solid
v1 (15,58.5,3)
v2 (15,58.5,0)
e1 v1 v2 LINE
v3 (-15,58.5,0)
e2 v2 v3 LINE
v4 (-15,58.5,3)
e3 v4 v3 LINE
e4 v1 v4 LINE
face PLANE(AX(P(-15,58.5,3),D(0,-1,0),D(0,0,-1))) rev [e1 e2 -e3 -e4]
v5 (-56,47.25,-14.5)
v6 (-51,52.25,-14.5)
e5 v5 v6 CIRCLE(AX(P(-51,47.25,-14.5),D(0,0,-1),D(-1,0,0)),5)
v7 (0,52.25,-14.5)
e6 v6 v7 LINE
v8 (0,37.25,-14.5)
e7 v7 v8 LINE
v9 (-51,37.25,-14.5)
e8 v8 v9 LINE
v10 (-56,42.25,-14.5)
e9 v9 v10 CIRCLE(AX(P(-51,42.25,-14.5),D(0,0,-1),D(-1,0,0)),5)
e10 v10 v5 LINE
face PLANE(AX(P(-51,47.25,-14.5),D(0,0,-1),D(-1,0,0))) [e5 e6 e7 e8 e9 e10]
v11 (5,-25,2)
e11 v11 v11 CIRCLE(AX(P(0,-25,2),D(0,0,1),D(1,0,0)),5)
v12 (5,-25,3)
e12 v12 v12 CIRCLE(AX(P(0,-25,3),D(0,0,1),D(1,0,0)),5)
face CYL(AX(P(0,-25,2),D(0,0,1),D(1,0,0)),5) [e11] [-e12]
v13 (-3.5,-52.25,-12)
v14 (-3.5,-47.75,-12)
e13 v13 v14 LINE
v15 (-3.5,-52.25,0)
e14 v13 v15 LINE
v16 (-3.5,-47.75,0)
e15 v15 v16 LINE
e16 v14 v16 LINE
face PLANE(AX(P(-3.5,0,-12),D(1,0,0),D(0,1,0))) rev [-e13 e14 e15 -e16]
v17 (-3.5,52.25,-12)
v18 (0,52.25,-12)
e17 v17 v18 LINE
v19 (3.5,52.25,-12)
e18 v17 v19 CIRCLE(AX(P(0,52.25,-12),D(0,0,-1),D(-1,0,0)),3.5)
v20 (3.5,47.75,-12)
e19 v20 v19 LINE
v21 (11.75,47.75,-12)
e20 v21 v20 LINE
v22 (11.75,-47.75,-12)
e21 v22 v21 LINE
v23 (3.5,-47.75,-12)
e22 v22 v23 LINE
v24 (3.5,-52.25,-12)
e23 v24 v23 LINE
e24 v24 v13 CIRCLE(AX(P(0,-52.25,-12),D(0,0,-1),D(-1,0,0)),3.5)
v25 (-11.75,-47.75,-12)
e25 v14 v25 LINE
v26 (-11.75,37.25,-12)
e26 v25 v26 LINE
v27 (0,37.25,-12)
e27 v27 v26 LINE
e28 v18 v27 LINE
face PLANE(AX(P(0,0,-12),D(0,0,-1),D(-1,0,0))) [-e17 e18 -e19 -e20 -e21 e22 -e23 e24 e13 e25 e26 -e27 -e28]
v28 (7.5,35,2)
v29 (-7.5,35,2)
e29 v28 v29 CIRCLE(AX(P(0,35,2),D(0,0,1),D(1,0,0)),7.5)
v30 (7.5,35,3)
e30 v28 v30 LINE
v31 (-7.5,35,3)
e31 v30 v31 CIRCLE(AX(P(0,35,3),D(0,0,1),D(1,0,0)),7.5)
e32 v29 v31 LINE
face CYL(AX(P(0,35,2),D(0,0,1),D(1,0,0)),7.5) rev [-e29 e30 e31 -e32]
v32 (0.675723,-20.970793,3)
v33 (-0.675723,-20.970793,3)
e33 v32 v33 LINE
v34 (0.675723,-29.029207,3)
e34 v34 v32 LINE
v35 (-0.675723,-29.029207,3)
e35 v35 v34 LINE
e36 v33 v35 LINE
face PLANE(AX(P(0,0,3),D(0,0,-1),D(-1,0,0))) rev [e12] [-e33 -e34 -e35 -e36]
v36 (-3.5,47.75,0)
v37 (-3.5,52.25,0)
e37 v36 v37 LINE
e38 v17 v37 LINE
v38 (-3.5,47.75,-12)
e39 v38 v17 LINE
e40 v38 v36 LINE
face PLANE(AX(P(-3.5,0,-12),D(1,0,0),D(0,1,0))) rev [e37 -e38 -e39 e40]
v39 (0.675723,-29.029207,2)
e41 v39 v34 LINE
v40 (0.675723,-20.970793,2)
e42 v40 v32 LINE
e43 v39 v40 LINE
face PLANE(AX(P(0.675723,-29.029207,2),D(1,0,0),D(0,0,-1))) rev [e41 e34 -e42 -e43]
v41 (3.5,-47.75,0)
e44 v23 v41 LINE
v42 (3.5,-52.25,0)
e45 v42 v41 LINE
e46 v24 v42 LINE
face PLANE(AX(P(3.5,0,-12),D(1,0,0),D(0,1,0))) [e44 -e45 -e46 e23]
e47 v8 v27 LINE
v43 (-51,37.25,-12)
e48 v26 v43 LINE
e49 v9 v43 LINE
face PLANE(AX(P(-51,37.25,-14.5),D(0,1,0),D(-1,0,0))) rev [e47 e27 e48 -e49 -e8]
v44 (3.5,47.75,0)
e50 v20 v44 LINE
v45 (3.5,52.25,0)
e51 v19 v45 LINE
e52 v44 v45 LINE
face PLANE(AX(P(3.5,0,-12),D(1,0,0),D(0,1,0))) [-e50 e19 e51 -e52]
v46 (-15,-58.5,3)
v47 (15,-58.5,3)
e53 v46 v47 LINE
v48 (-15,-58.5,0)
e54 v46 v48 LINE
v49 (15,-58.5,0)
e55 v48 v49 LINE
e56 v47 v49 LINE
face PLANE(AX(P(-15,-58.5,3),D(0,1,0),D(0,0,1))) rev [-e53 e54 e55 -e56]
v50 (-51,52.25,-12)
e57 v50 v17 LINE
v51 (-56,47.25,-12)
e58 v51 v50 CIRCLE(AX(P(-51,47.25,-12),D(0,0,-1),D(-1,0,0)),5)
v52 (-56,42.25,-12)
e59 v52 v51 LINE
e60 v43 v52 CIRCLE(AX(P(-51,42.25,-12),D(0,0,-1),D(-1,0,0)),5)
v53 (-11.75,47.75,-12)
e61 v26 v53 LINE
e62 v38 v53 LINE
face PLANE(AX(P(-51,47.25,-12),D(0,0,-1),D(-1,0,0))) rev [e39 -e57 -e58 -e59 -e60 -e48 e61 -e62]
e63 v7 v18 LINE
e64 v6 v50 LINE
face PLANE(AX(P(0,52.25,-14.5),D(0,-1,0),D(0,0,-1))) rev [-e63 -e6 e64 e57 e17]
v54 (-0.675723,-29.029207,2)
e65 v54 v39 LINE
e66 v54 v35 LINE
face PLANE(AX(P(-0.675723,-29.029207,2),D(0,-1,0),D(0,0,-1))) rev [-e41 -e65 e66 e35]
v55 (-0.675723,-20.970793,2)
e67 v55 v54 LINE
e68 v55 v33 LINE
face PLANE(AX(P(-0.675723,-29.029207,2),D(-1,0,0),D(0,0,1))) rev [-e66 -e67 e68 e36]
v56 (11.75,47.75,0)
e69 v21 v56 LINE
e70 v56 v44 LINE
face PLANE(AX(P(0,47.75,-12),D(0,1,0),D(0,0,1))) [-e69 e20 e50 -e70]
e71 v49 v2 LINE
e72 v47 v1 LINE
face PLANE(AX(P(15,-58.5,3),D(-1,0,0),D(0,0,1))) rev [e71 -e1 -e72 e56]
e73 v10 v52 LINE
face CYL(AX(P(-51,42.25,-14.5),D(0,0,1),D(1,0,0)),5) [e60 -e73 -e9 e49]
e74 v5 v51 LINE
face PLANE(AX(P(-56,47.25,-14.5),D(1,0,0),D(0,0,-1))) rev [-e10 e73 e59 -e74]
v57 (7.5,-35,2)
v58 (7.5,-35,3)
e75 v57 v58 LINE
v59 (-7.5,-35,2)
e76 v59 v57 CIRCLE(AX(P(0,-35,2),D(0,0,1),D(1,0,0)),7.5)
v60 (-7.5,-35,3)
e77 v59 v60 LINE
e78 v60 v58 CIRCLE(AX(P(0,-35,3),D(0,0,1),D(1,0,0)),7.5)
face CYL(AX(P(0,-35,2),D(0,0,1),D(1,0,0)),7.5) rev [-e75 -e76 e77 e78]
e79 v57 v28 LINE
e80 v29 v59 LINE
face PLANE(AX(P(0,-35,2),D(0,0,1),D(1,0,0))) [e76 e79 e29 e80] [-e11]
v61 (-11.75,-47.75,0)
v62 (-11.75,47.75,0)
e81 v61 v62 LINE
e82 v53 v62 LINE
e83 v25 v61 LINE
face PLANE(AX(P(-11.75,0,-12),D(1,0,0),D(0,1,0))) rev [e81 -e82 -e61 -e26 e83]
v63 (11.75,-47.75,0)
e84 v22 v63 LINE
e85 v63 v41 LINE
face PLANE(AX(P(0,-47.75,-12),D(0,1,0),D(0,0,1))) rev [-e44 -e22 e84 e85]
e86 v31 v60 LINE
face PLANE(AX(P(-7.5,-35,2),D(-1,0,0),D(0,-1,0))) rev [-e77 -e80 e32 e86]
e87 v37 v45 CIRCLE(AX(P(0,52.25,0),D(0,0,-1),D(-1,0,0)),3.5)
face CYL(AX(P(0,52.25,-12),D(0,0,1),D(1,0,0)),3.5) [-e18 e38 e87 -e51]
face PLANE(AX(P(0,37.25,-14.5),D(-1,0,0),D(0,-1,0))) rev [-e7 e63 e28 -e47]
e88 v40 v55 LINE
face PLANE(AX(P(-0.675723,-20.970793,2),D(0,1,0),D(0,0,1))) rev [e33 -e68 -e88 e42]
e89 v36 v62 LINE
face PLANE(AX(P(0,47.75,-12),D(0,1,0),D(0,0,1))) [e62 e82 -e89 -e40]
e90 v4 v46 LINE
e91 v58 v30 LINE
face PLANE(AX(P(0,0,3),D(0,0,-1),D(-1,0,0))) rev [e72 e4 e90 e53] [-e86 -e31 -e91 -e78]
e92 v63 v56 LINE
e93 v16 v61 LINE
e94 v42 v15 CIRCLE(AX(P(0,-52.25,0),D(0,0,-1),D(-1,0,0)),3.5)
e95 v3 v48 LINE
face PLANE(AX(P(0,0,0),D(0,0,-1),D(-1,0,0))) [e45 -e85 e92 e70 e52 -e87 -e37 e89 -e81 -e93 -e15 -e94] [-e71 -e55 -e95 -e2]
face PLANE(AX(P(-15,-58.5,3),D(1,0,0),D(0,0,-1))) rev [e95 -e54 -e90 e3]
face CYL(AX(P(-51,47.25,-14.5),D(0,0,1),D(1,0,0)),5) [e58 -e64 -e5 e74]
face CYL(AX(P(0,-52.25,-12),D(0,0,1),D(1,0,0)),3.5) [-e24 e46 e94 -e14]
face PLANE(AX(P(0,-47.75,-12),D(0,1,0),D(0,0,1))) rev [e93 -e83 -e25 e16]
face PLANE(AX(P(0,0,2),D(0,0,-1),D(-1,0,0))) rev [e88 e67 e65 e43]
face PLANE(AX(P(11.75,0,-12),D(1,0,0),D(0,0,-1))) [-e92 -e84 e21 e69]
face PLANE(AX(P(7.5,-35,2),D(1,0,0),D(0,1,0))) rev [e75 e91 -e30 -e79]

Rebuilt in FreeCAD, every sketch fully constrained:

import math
import FreeCAD as App
import Part
import Sketcher

V = App.Vector

doc = App.newDocument("Part")
body = doc.addObject("PartDesign::Body", "Body")

# Sketch on XY plane
sketch1 = body.newObject("Sketcher::SketchObject", "Sketch")
sketch1.AttachmentSupport = (doc.getObject("XY_Plane"), [""])
sketch1.MapMode = "FlatFace"
sketch1.addGeometry([
    Part.LineSegment(V(-15, 58, 0), V(-15, -58, 0)),
    Part.LineSegment(V(-15, -58, 0), V(15, -58, 0)),
    Part.LineSegment(V(15, -58, 0), V(15, 58, 0)),
    Part.LineSegment(V(15, 58, 0), V(-15, 58, 0)),
], False)
sketch1.addConstraint([
    Sketcher.Constraint("Coincident", 0, 2, 1, 1),
    Sketcher.Constraint("Coincident", 1, 2, 2, 1),
    Sketcher.Constraint("Coincident", 2, 2, 3, 1),
    Sketcher.Constraint("Coincident", 3, 2, 0, 1),
    Sketcher.Constraint("Vertical", 0),
    Sketcher.Constraint("Horizontal", 1),
    Sketcher.Constraint("Vertical", 2),
    Sketcher.Constraint("Horizontal", 3),
    Sketcher.Constraint("Symmetric", 0, 2, 2, 2, -1, 1),
    Sketcher.Constraint("DistanceX", 1, 1, 1, 2, 30.0),
    Sketcher.Constraint("DistanceY", 0, 2, 0, 1, 117.0),
])
pad1 = body.newObject("PartDesign::Pad", "Pad")
pad1.Profile = sketch1
pad1.Length = 3

# Sketch on XY plane
sketch2 = body.newObject("Sketcher::SketchObject", "Sketch001")
sketch2.AttachmentSupport = (doc.getObject("XY_Plane"), [""])
sketch2.MapMode = "FlatFace"
sketch2.AttachmentOffset = App.Placement(V(0, 0, 3), App.Rotation())
sketch2.addGeometry([
    Part.LineSegment(V(-8, 35, 0), V(-8, -35, 0)),  # 0
    Part.ArcOfCircle(Part.Circle(V(0, -35, 0), V(0, 0, 1), 8), math.radians(180), math.radians(360)),  # 1
    Part.LineSegment(V(8, -35, 0), V(8, 35, 0)),  # 2
    Part.ArcOfCircle(Part.Circle(V(0, 35, 0), V(0, 0, 1), 8), math.radians(0), math.radians(180)),  # 3
    Part.Circle(V(0, -25, 0), V(0, 0, 1), 5),  # 4
], False)
sketch2.addConstraint([
    Sketcher.Constraint("Tangent", 0, 2, 1, 1),
    Sketcher.Constraint("Tangent", 1, 2, 2, 1),
    Sketcher.Constraint("Tangent", 2, 2, 3, 1),
    Sketcher.Constraint("Tangent", 3, 2, 0, 1),
    Sketcher.Constraint("Vertical", 0),
    Sketcher.Constraint("Vertical", 2),
    Sketcher.Constraint("Symmetric", 1, 3, 3, 3, -1, 1),
    Sketcher.Constraint("PointOnObject", 4, 3, -2),
    Sketcher.Constraint("Diameter", 4, 10.0),
    Sketcher.Constraint("Radius", 1, 7.5),
    Sketcher.Constraint("DistanceY", 0, 2, 0, 1, 70.0),
    Sketcher.Constraint("DistanceY", 4, 3, -1, 1, 25.0),
])
pocket1 = body.newObject("PartDesign::Pocket", "Pocket")
pocket1.Profile = sketch2
pocket1.Length = 1

# Sketch on XY plane
sketch3 = body.newObject("Sketcher::SketchObject", "Sketch002")
sketch3.AttachmentSupport = (doc.getObject("XY_Plane"), [""])
sketch3.MapMode = "FlatFace"
sketch3.AttachmentOffset = App.Placement(V(0, 0, 3), App.Rotation())
sketch3.addGeometry([
    Part.LineSegment(V(-0.7, -21, 0), V(-0.7, -29, 0)),
    Part.LineSegment(V(-0.7, -29, 0), V(0.7, -29, 0)),
    Part.LineSegment(V(0.7, -29, 0), V(0.7, -21, 0)),
    Part.LineSegment(V(0.7, -21, 0), V(-0.7, -21, 0)),
], False)
sketch3.addConstraint([
    Sketcher.Constraint("Coincident", 0, 2, 1, 1),
    Sketcher.Constraint("Coincident", 1, 2, 2, 1),
    Sketcher.Constraint("Coincident", 2, 2, 3, 1),
    Sketcher.Constraint("Coincident", 3, 2, 0, 1),
    Sketcher.Constraint("Vertical", 0),
    Sketcher.Constraint("Horizontal", 1),
    Sketcher.Constraint("Vertical", 2),
    Sketcher.Constraint("Horizontal", 3),
    Sketcher.Constraint("DistanceX", 1, 1, 1, 2, 1.351447),
    Sketcher.Constraint("DistanceY", 0, 2, 0, 1, 8.058415),
    Sketcher.Constraint("DistanceX", 0, 2, -1, 1, 0.675723),
    Sketcher.Constraint("DistanceY", 0, 2, -1, 1, 29.029207),
])
pocket2 = body.newObject("PartDesign::Pocket", "Pocket001")
pocket2.Profile = sketch3
pocket2.Length = 1

# Sketch on XY plane
sketch4 = body.newObject("Sketcher::SketchObject", "Sketch003")
sketch4.AttachmentSupport = (doc.getObject("XY_Plane"), [""])
sketch4.MapMode = "FlatFace"
sketch4.addGeometry([
    Part.LineSegment(V(11.8, 47.8, 0), V(11.8, -47.8, 0)),  # 0
    Part.LineSegment(V(11.8, -47.8, 0), V(3.5, -47.8, 0)),  # 1
    Part.LineSegment(V(3.5, -47.8, 0), V(3.5, -52.2, 0)),  # 2
    Part.ArcOfCircle(Part.Circle(V(0, -52.2, 0), V(0, 0, 1), 3.5), math.radians(180), math.radians(360)),  # 3
    Part.LineSegment(V(-3.5, -52.2, 0), V(-3.5, -47.8, 0)),  # 4
    Part.LineSegment(V(-3.5, -47.8, 0), V(-11.8, -47.8, 0)),  # 5
    Part.LineSegment(V(-11.8, -47.8, 0), V(-11.8, 47.8, 0)),  # 6
    Part.LineSegment(V(-11.8, 47.8, 0), V(-3.5, 47.8, 0)),  # 7
    Part.LineSegment(V(-3.5, 47.8, 0), V(-3.5, 52.2, 0)),  # 8
    Part.ArcOfCircle(Part.Circle(V(0, 52.2, 0), V(0, 0, 1), 3.5), math.radians(0), math.radians(180)),  # 9
    Part.LineSegment(V(3.5, 52.2, 0), V(3.5, 47.8, 0)),  # 10
    Part.LineSegment(V(3.5, 47.8, 0), V(11.8, 47.8, 0)),  # 11
], False)
sketch4.addConstraint([
    Sketcher.Constraint("Coincident", 0, 2, 1, 1),
    Sketcher.Constraint("Coincident", 1, 2, 2, 1),
    Sketcher.Constraint("Tangent", 2, 2, 3, 2),
    Sketcher.Constraint("Tangent", 3, 1, 4, 1),
    Sketcher.Constraint("Coincident", 4, 2, 5, 1),
    Sketcher.Constraint("Coincident", 5, 2, 6, 1),
    Sketcher.Constraint("Coincident", 6, 2, 7, 1),
    Sketcher.Constraint("Coincident", 7, 2, 8, 1),
    Sketcher.Constraint("Tangent", 8, 2, 9, 2),
    Sketcher.Constraint("Tangent", 9, 1, 10, 1),
    Sketcher.Constraint("Coincident", 10, 2, 11, 1),
    Sketcher.Constraint("Coincident", 11, 2, 0, 1),
    Sketcher.Constraint("Vertical", 0),
    Sketcher.Constraint("Horizontal", 1),
    Sketcher.Constraint("Vertical", 2),
    Sketcher.Constraint("Vertical", 4),
    Sketcher.Constraint("Horizontal", 5),
    Sketcher.Constraint("Vertical", 6),
    Sketcher.Constraint("Horizontal", 7),
    Sketcher.Constraint("Vertical", 8),
    Sketcher.Constraint("Vertical", 10),
    Sketcher.Constraint("Horizontal", 11),
    Sketcher.Constraint("Equal", 3, 9),
    Sketcher.Constraint("Symmetric", 3, 3, 9, 3, -1, 1),
    Sketcher.Constraint("Symmetric", 0, 2, 6, 2, -1, 1),
    Sketcher.Constraint("Symmetric", 1, 2, 4, 2, -2),
    Sketcher.Constraint("Horizontal", 7, 2, 10, 2),
    Sketcher.Constraint("Radius", 3, 3.5),
    Sketcher.Constraint("DistanceY", 0, 2, 0, 1, 95.5),
    Sketcher.Constraint("DistanceY", 2, 2, 2, 1, 4.5),
    Sketcher.Constraint("DistanceX", 1, 2, 1, 1, 8.25),
])
pad2 = body.newObject("PartDesign::Pad", "Pad001")
pad2.Profile = sketch4
pad2.Length = 12
pad2.Reversed = True

# Sketch on XY plane
sketch5 = body.newObject("Sketcher::SketchObject", "Sketch004")
sketch5.AttachmentSupport = (doc.getObject("XY_Plane"), [""])
sketch5.MapMode = "FlatFace"
sketch5.AttachmentOffset = App.Placement(V(0, 0, -12), App.Rotation())
sketch5.addGeometry([
    Part.LineSegment(V(-51, 52, 0), V(0, 52, 0)),  # 0
    Part.LineSegment(V(0, 52, 0), V(0, 37, 0)),  # 1
    Part.LineSegment(V(0, 37, 0), V(-51, 37, 0)),  # 2
    Part.ArcOfCircle(Part.Circle(V(-51, 42, 0), V(0, 0, 1), 5), math.radians(180), math.radians(270)),  # 3
    Part.LineSegment(V(-56, 42, 0), V(-56, 47, 0)),  # 4
    Part.ArcOfCircle(Part.Circle(V(-51, 47, 0), V(0, 0, 1), 5), math.radians(90), math.radians(180)),  # 5
], False)
sketch5.addConstraint([
    Sketcher.Constraint("Coincident", 0, 2, 1, 1),
    Sketcher.Constraint("Coincident", 1, 2, 2, 1),
    Sketcher.Constraint("Tangent", 2, 2, 3, 2),
    Sketcher.Constraint("Tangent", 3, 1, 4, 1),
    Sketcher.Constraint("Tangent", 4, 2, 5, 2),
    Sketcher.Constraint("Tangent", 5, 1, 0, 1),
    Sketcher.Constraint("Horizontal", 0),
    Sketcher.Constraint("Vertical", 1),
    Sketcher.Constraint("Horizontal", 2),
    Sketcher.Constraint("Vertical", 4),
    Sketcher.Constraint("Equal", 3, 5),
    Sketcher.Constraint("PointOnObject", 0, 2, -2),
    Sketcher.Constraint("Radius", 3, 5.0),
    Sketcher.Constraint("DistanceX", 0, 1, 0, 2, 51.0),
    Sketcher.Constraint("DistanceY", 1, 2, 1, 1, 15.0),
    Sketcher.Constraint("DistanceY", -1, 1, 3, 3, 42.25),
])
pad3 = body.newObject("PartDesign::Pad", "Pad002")
pad3.Profile = sketch5
pad3.Length = 2.5
pad3.Reversed = True

doc.recompute()
